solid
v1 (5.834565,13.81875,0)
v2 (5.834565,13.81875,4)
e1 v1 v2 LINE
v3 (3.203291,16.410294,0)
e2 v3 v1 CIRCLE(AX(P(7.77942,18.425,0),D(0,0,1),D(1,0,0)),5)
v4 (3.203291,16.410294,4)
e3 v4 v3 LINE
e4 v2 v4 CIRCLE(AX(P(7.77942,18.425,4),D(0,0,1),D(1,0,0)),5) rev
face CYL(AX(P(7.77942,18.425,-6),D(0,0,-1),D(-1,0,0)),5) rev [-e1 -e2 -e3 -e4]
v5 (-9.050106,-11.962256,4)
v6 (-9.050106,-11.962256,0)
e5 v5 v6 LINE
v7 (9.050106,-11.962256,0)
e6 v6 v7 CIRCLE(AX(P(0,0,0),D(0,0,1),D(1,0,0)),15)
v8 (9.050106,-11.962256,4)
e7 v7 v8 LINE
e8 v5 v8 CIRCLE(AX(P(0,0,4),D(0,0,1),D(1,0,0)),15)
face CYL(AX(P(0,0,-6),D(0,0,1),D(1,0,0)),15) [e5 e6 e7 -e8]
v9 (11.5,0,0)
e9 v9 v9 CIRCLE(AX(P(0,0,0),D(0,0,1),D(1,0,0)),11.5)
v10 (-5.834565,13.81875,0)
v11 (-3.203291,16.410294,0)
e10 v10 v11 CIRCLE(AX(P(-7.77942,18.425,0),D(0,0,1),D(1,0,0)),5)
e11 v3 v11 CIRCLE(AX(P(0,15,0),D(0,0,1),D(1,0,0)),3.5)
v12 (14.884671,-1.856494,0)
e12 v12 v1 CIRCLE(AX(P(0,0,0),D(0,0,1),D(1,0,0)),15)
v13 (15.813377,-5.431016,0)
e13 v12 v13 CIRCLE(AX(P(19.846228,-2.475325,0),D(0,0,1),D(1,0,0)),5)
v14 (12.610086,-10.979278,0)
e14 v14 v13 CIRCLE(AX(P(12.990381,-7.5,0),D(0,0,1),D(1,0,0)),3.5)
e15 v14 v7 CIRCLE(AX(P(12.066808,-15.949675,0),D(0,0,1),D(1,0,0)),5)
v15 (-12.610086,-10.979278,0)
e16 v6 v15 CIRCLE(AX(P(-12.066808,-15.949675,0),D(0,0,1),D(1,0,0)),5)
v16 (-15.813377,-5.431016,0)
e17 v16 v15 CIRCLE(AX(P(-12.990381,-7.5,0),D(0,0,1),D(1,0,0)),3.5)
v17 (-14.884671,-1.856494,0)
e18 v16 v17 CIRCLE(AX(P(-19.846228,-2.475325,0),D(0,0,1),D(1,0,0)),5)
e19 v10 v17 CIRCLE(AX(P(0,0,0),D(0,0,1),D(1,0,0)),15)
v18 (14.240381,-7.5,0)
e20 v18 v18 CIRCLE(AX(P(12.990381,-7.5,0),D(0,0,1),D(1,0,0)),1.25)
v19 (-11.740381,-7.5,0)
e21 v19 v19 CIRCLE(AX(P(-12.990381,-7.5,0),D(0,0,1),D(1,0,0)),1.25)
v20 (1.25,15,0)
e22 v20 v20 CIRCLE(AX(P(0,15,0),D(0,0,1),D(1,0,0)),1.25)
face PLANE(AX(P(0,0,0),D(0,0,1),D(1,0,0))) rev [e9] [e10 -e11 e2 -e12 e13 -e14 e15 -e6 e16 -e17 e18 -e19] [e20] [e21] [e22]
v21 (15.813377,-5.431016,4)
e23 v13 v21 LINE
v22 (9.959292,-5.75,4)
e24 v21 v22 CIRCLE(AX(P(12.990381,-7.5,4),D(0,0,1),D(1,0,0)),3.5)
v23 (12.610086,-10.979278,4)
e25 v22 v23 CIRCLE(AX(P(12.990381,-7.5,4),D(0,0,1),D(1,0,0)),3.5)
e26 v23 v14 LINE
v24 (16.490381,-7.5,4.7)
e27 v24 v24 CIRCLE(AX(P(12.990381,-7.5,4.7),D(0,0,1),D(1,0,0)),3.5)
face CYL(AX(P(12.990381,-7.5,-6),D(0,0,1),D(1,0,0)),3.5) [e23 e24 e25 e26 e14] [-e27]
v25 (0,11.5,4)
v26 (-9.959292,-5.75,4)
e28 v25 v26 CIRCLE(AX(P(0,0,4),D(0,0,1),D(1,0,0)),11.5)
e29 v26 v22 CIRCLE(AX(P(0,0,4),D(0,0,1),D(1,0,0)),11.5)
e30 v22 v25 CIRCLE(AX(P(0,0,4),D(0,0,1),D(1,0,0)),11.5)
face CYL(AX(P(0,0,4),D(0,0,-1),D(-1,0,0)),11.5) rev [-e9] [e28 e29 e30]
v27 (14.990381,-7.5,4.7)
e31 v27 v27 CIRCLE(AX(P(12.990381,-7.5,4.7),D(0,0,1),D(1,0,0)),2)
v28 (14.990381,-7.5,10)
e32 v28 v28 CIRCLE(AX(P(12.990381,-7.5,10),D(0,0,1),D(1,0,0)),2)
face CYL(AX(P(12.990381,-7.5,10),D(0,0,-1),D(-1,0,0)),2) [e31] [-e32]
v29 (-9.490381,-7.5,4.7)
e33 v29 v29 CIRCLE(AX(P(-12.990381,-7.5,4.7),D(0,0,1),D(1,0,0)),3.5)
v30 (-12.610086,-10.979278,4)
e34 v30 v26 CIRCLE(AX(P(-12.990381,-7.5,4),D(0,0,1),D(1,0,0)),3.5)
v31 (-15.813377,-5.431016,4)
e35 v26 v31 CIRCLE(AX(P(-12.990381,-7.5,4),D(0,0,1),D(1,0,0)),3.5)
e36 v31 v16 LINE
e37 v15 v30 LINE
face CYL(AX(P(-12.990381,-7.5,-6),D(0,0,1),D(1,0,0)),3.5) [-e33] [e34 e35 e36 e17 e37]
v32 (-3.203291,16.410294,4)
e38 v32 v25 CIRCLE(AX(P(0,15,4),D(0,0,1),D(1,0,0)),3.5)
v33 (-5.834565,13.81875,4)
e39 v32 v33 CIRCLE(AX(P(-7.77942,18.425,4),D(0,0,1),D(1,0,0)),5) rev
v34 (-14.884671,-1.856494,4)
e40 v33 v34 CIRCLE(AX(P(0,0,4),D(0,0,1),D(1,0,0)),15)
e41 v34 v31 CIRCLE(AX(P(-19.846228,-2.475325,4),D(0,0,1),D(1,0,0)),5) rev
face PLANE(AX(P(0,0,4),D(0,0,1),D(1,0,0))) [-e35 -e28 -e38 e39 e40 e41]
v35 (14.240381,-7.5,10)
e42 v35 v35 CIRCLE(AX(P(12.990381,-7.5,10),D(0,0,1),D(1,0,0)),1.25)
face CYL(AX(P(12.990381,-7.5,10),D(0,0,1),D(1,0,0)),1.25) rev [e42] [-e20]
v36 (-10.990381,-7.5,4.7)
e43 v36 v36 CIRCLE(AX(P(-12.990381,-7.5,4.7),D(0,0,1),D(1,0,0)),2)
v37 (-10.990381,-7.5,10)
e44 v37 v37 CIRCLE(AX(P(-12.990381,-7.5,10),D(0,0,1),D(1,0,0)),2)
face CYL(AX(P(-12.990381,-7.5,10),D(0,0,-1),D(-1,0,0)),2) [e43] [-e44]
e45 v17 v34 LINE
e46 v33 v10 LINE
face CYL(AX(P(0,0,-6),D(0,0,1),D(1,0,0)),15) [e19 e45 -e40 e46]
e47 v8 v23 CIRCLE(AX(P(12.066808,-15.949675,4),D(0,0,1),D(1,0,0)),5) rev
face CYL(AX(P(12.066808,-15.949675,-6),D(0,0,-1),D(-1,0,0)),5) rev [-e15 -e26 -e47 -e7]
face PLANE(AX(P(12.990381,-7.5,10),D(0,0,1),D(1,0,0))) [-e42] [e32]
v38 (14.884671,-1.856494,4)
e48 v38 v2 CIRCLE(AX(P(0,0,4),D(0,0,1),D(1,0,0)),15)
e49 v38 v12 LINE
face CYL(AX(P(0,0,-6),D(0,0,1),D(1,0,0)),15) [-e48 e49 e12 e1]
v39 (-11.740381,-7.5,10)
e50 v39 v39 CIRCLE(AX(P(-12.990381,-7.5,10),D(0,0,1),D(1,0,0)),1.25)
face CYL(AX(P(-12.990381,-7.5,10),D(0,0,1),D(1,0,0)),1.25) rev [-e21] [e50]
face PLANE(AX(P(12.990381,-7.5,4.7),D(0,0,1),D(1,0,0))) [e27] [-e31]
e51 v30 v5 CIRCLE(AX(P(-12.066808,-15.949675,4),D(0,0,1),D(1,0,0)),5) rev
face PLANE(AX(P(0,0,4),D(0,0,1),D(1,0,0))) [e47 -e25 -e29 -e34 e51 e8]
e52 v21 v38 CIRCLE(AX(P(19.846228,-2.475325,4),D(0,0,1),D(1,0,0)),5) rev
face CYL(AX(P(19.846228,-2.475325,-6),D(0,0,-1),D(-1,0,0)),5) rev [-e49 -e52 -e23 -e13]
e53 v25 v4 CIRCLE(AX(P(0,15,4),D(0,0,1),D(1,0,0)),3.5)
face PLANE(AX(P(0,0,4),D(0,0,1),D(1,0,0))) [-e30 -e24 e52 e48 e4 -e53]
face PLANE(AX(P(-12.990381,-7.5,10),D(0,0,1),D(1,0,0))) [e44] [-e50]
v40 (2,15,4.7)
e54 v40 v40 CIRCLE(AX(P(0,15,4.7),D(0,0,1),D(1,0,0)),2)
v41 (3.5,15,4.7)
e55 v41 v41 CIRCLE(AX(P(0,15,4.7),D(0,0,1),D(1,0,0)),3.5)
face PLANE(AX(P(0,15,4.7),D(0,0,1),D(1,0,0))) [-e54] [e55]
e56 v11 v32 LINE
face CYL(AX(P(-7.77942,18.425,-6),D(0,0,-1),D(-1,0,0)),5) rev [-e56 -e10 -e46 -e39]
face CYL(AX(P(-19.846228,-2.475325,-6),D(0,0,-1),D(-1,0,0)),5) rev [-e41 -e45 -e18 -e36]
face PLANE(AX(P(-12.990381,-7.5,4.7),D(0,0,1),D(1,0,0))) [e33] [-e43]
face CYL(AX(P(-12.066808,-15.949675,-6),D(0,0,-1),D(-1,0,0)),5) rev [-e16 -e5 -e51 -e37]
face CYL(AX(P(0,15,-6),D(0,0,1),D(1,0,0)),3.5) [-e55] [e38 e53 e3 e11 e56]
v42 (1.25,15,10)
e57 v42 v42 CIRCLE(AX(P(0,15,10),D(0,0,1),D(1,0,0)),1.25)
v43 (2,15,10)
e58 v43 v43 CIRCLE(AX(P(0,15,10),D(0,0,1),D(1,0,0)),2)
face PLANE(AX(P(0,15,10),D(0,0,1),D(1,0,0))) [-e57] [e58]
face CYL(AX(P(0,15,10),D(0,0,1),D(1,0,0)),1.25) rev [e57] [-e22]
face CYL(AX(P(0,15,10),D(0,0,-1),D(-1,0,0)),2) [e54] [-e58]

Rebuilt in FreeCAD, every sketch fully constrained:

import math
import FreeCAD as App
import Part
import Sketcher


def edges_at(feature, points):
    """Names of the edges that pass closest to the given points."""
    edges = feature.Shape.Edges
    near = lambda p: min(range(len(edges)), key=lambda i: edges[i].distToShape(Part.Vertex(*p))[0])
    return sorted({f"Edge{near(p) + 1}" for p in points})

doc = App.newDocument("Part")
body = doc.addObject("PartDesign::Body", "Body")

sketch1 = body.newObject("Sketcher::SketchObject", "Sketch")
sketch1.AttachmentSupport = (doc.getObject("XY_Plane"), [""])
sketch1.MapMode = "FlatFace"
sketch1.addGeometry([
    Part.Circle(App.Vector(0, 0, 0), App.Vector(0, 0, 1), 18.5),
    Part.Circle(App.Vector(0, 0, 0), App.Vector(0, 0, 1), 11.5),
], False)
sketch1.addConstraint([
    Sketcher.Constraint("Coincident", 0, 3, -1, 1),
    Sketcher.Constraint("Coincident", 1, 3, -1, 1),
    Sketcher.Constraint("Diameter", 0, 37.0),
    Sketcher.Constraint("Diameter", 1, 23.0),
])
pad1 = body.newObject("PartDesign::Pad", "Pad")
pad1.Profile = sketch1
pad1.Length = 4

sketch2 = body.newObject("Sketcher::SketchObject", "Sketch001")
sketch2.AttachmentSupport = (doc.getObject("XY_Plane"), [""])
sketch2.MapMode = "FlatFace"
sketch2.AttachmentOffset = App.Placement(App.Vector(0, 0, 4), App.Rotation())
sketch2.addGeometry([
    Part.Circle(App.Vector(0, 15, 0), App.Vector(0, 0, 1), 2),
    Part.Circle(App.Vector(12.990381, -7.5, 0), App.Vector(0, 0, 1), 2),
    Part.Circle(App.Vector(-12.990381, -7.5, 0), App.Vector(0, 0, 1), 2),
], False)
sketch2.addConstraint([
    Sketcher.Constraint("Equal", 0, 1),
    Sketcher.Constraint("Equal", 1, 2),
    Sketcher.Constraint("Symmetric", 1, 3, 2, 3, -2),
    Sketcher.Constraint("PointOnObject", 0, 3, -2),
    Sketcher.Constraint("Diameter", 0, 4.0),
    Sketcher.Constraint("DistanceY", -1, 1, 0, 3, 15.0),
    Sketcher.Constraint("DistanceY", 1, 3, -1, 1, 7.5),
    Sketcher.Constraint("DistanceX", -1, 1, 1, 3, 12.990381),
])
pad2 = body.newObject("PartDesign::Pad", "Pad001")
pad2.Profile = sketch2
pad2.Length = 6

sketch3 = body.newObject("Sketcher::SketchObject", "Sketch002")
sketch3.AttachmentSupport = (doc.getObject("XY_Plane"), [""])
sketch3.MapMode = "FlatFace"
sketch3.AttachmentOffset = App.Placement(App.Vector(0, 0, 10), App.Rotation())
sketch3.addGeometry([
    Part.Circle(App.Vector(0, 15, 0), App.Vector(0, 0, 1), 1.25),
    Part.Circle(App.Vector(12.990381, -7.5, 0), App.Vector(0, 0, 1), 1.25),
    Part.Circle(App.Vector(-12.990381, -7.5, 0), App.Vector(0, 0, 1), 1.25),
], False)
sketch3.addConstraint([
    Sketcher.Constraint("Equal", 0, 1),
    Sketcher.Constraint("Equal", 1, 2),
    Sketcher.Constraint("Symmetric", 1, 3, 2, 3, -2),
    Sketcher.Constraint("PointOnObject", 0, 3, -2),
    Sketcher.Constraint("Diameter", 0, 2.5),
    Sketcher.Constraint("DistanceY", -1, 1, 0, 3, 15.0),
    Sketcher.Constraint("DistanceY", 1, 3, -1, 1, 7.5),
    Sketcher.Constraint("DistanceX", -1, 1, 1, 3, 12.990381),
])
doc.recompute()
hole = body.newObject("PartDesign::Hole", "Hole")
hole.Profile = sketch3
hole.ThreadType = "None"
hole.Diameter = 2.5
hole.DepthType = "ThroughAll"

sketch4 = body.newObject("Sketcher::SketchObject", "Sketch003")
sketch4.AttachmentSupport = (doc.getObject("XY_Plane"), [""])
sketch4.MapMode = "FlatFace"
sketch4.AttachmentOffset = App.Placement(App.Vector(0, 0, 4), App.Rotation())
sketch4.addGeometry([
    Part.ArcOfCircle(Part.Circle(App.Vector(0, 15, 0), App.Vector(0, 0, 1), 3.5), math.radians(-6.699765), math.radians(90)),
    Part.ArcOfCircle(Part.Circle(App.Vector(0, 0, 0), App.Vector(0, 0, 1), 15), math.radians(-16.60047), math.radians(76.60047)),
    Part.ArcOfCircle(Part.Circle(App.Vector(12.990381, -7.5, 0), App.Vector(0, 0, 1), 3.5), math.radians(-29.999999), math.radians(66.699765)),
    Part.ArcOfCircle(Part.Circle(App.Vector(0, 0, 0), App.Vector(0, 0, 1), 18.5), math.radians(-30), math.radians(90)),
    Part.ArcOfCircle(Part.Circle(App.Vector(0, 15, 0), App.Vector(0, 0, 1), 3.5), math.radians(90), math.radians(186.699765)),
    Part.ArcOfCircle(Part.Circle(App.Vector(0, 0, 0), App.Vector(0, 0, 1), 18.5), math.radians(90), math.radians(210)),
    Part.ArcOfCircle(Part.Circle(App.Vector(-12.990381, -7.5, 0), App.Vector(0, 0, 1), 3.5), math.radians(113.300235), math.radians(209.999999)),
    Part.ArcOfCircle(Part.Circle(App.Vector(0, 0, 0), App.Vector(0, 0, 1), 15), math.radians(103.39953), math.radians(196.60047)),
    Part.ArcOfCircle(Part.Circle(App.Vector(-12.990381, -7.5, 0), App.Vector(0, 0, 1), 3.5), math.radians(-150.000001), math.radians(-53.300235)),
    Part.ArcOfCircle(Part.Circle(App.Vector(0, 0, 0), App.Vector(0, 0, 1), 18.5), math.radians(-150), math.radians(-30)),
    Part.ArcOfCircle(Part.Circle(App.Vector(12.990381, -7.5, 0), App.Vector(0, 0, 1), 3.5), math.radians(-126.699765), math.radians(-29.999999)),
    Part.ArcOfCircle(Part.Circle(App.Vector(0, 0, 0), App.Vector(0, 0, 1), 15), math.radians(-136.60047), math.radians(-43.39953)),
], False)
sketch4.addConstraint([
    Sketcher.Constraint("Coincident", 0, 1, 1, 2),
    Sketcher.Constraint("Coincident", 1, 1, 2, 2),
    Sketcher.Constraint("Tangent", 2, 1, 3, 1),
    Sketcher.Constraint("Tangent", 3, 2, 0, 2),
    Sketcher.Constraint("Tangent", 4, 1, 5, 1),
    Sketcher.Constraint("Tangent", 5, 2, 6, 2),
    Sketcher.Constraint("Coincident", 6, 1, 7, 2),
    Sketcher.Constraint("Coincident", 7, 1, 4, 2),
    Sketcher.Constraint("Tangent", 8, 1, 9, 1),
    Sketcher.Constraint("Tangent", 9, 2, 10, 2),
    Sketcher.Constraint("Coincident", 10, 1, 11, 2),
    Sketcher.Constraint("Coincident", 11, 1, 8, 2),
    Sketcher.Constraint("Coincident", 1, 3, -1, 1),
    Sketcher.Constraint("Coincident", 3, 3, -1, 1),
    Sketcher.Constraint("Coincident", 5, 3, -1, 1),
    Sketcher.Constraint("Coincident", 7, 3, -1, 1),
    Sketcher.Constraint("Coincident", 9, 3, -1, 1),
    Sketcher.Constraint("Coincident", 11, 3, -1, 1),
    Sketcher.Constraint("Coincident", 4, 3, 0, 3),
    Sketcher.Constraint("Coincident", 8, 3, 6, 3),
    Sketcher.Constraint("Coincident", 10, 3, 2, 3),
    Sketcher.Constraint("Equal", 0, 2),
    Sketcher.Constraint("Equal", 2, 4),
    Sketcher.Constraint("Equal", 4, 6),
    Sketcher.Constraint("Equal", 1, 7),
    Sketcher.Constraint("Equal", 6, 8),
    Sketcher.Constraint("Equal", 7, 11),
    Sketcher.Constraint("PointOnObject", 0, 3, -2),
    Sketcher.Constraint("Horizontal", 2, 3, 6, 3),
    Sketcher.Constraint("Radius", 1, 15.0),
    Sketcher.Constraint("Radius", 0, 3.5),
    Sketcher.Constraint("Radius", 3, 18.5),
    Sketcher.Constraint("DistanceY", 2, 3, -1, 1, 7.5),
])
pocket1 = body.newObject("PartDesign::Pocket", "Pocket")
pocket1.Profile = sketch4
pocket1.Length = 10
doc.recompute()

fillet = body.newObject("PartDesign::Fillet", "Fillet")
fillet.Base = (pocket1, edges_at(pocket1, [
    (-3.476, 14.592, 2),
    (-14.375, -4.285, 2),
    (14.375, -4.285, 2),
    (3.476, 14.592, 2),
    (-10.899, -10.306, 2),
    (10.899, -10.306, 2),
]))
fillet.Radius = 5

sketch5 = body.newObject("Sketcher::SketchObject", "Sketch004")
sketch5.AttachmentSupport = (doc.getObject("XY_Plane"), [""])
sketch5.MapMode = "FlatFace"
sketch5.AttachmentOffset = App.Placement(App.Vector(0, 0, 4), App.Rotation())
sketch5.addGeometry([
    Part.Circle(App.Vector(-12.990381, -7.5, 0), App.Vector(0, 0, 1), 3.5),
    Part.Circle(App.Vector(-12.990381, -7.5, 0), App.Vector(0, 0, 1), 2),
    Part.Circle(App.Vector(0, 15, 0), App.Vector(0, 0, 1), 3.5),
    Part.Circle(App.Vector(0, 15, 0), App.Vector(0, 0, 1), 2),
    Part.Circle(App.Vector(12.990381, -7.5, 0), App.Vector(0, 0, 1), 3.5),
    Part.Circle(App.Vector(12.990381, -7.5, 0), App.Vector(0, 0, 1), 2),
], False)
sketch5.addConstraint([
    Sketcher.Constraint("Coincident", 1, 3, 0, 3),
    Sketcher.Constraint("Coincident", 3, 3, 2, 3),
    Sketcher.Constraint("Coincident", 5, 3, 4, 3),
    Sketcher.Constraint("Equal", 0, 2),
    Sketcher.Constraint("Equal", 1, 3),
    Sketcher.Constraint("Equal", 2, 4),
    Sketcher.Constraint("Equal", 3, 5),
    Sketcher.Constraint("Symmetric", 0, 3, 4, 3, -2),
    Sketcher.Constraint("PointOnObject", 2, 3, -2),
    Sketcher.Constraint("Diameter", 0, 7.0),
    Sketcher.Constraint("Diameter", 1, 4.0),
    Sketcher.Constraint("DistanceY", -1, 1, 2, 3, 15.0),
    Sketcher.Constraint("DistanceY", 0, 3, -1, 1, 7.5),
    Sketcher.Constraint("DistanceX", 0, 3, -1, 1, 12.990381),
])
pad3 = body.newObject("PartDesign::Pad", "Pad002")
pad3.Profile = sketch5
pad3.Length = 0.7

doc.recompute()
